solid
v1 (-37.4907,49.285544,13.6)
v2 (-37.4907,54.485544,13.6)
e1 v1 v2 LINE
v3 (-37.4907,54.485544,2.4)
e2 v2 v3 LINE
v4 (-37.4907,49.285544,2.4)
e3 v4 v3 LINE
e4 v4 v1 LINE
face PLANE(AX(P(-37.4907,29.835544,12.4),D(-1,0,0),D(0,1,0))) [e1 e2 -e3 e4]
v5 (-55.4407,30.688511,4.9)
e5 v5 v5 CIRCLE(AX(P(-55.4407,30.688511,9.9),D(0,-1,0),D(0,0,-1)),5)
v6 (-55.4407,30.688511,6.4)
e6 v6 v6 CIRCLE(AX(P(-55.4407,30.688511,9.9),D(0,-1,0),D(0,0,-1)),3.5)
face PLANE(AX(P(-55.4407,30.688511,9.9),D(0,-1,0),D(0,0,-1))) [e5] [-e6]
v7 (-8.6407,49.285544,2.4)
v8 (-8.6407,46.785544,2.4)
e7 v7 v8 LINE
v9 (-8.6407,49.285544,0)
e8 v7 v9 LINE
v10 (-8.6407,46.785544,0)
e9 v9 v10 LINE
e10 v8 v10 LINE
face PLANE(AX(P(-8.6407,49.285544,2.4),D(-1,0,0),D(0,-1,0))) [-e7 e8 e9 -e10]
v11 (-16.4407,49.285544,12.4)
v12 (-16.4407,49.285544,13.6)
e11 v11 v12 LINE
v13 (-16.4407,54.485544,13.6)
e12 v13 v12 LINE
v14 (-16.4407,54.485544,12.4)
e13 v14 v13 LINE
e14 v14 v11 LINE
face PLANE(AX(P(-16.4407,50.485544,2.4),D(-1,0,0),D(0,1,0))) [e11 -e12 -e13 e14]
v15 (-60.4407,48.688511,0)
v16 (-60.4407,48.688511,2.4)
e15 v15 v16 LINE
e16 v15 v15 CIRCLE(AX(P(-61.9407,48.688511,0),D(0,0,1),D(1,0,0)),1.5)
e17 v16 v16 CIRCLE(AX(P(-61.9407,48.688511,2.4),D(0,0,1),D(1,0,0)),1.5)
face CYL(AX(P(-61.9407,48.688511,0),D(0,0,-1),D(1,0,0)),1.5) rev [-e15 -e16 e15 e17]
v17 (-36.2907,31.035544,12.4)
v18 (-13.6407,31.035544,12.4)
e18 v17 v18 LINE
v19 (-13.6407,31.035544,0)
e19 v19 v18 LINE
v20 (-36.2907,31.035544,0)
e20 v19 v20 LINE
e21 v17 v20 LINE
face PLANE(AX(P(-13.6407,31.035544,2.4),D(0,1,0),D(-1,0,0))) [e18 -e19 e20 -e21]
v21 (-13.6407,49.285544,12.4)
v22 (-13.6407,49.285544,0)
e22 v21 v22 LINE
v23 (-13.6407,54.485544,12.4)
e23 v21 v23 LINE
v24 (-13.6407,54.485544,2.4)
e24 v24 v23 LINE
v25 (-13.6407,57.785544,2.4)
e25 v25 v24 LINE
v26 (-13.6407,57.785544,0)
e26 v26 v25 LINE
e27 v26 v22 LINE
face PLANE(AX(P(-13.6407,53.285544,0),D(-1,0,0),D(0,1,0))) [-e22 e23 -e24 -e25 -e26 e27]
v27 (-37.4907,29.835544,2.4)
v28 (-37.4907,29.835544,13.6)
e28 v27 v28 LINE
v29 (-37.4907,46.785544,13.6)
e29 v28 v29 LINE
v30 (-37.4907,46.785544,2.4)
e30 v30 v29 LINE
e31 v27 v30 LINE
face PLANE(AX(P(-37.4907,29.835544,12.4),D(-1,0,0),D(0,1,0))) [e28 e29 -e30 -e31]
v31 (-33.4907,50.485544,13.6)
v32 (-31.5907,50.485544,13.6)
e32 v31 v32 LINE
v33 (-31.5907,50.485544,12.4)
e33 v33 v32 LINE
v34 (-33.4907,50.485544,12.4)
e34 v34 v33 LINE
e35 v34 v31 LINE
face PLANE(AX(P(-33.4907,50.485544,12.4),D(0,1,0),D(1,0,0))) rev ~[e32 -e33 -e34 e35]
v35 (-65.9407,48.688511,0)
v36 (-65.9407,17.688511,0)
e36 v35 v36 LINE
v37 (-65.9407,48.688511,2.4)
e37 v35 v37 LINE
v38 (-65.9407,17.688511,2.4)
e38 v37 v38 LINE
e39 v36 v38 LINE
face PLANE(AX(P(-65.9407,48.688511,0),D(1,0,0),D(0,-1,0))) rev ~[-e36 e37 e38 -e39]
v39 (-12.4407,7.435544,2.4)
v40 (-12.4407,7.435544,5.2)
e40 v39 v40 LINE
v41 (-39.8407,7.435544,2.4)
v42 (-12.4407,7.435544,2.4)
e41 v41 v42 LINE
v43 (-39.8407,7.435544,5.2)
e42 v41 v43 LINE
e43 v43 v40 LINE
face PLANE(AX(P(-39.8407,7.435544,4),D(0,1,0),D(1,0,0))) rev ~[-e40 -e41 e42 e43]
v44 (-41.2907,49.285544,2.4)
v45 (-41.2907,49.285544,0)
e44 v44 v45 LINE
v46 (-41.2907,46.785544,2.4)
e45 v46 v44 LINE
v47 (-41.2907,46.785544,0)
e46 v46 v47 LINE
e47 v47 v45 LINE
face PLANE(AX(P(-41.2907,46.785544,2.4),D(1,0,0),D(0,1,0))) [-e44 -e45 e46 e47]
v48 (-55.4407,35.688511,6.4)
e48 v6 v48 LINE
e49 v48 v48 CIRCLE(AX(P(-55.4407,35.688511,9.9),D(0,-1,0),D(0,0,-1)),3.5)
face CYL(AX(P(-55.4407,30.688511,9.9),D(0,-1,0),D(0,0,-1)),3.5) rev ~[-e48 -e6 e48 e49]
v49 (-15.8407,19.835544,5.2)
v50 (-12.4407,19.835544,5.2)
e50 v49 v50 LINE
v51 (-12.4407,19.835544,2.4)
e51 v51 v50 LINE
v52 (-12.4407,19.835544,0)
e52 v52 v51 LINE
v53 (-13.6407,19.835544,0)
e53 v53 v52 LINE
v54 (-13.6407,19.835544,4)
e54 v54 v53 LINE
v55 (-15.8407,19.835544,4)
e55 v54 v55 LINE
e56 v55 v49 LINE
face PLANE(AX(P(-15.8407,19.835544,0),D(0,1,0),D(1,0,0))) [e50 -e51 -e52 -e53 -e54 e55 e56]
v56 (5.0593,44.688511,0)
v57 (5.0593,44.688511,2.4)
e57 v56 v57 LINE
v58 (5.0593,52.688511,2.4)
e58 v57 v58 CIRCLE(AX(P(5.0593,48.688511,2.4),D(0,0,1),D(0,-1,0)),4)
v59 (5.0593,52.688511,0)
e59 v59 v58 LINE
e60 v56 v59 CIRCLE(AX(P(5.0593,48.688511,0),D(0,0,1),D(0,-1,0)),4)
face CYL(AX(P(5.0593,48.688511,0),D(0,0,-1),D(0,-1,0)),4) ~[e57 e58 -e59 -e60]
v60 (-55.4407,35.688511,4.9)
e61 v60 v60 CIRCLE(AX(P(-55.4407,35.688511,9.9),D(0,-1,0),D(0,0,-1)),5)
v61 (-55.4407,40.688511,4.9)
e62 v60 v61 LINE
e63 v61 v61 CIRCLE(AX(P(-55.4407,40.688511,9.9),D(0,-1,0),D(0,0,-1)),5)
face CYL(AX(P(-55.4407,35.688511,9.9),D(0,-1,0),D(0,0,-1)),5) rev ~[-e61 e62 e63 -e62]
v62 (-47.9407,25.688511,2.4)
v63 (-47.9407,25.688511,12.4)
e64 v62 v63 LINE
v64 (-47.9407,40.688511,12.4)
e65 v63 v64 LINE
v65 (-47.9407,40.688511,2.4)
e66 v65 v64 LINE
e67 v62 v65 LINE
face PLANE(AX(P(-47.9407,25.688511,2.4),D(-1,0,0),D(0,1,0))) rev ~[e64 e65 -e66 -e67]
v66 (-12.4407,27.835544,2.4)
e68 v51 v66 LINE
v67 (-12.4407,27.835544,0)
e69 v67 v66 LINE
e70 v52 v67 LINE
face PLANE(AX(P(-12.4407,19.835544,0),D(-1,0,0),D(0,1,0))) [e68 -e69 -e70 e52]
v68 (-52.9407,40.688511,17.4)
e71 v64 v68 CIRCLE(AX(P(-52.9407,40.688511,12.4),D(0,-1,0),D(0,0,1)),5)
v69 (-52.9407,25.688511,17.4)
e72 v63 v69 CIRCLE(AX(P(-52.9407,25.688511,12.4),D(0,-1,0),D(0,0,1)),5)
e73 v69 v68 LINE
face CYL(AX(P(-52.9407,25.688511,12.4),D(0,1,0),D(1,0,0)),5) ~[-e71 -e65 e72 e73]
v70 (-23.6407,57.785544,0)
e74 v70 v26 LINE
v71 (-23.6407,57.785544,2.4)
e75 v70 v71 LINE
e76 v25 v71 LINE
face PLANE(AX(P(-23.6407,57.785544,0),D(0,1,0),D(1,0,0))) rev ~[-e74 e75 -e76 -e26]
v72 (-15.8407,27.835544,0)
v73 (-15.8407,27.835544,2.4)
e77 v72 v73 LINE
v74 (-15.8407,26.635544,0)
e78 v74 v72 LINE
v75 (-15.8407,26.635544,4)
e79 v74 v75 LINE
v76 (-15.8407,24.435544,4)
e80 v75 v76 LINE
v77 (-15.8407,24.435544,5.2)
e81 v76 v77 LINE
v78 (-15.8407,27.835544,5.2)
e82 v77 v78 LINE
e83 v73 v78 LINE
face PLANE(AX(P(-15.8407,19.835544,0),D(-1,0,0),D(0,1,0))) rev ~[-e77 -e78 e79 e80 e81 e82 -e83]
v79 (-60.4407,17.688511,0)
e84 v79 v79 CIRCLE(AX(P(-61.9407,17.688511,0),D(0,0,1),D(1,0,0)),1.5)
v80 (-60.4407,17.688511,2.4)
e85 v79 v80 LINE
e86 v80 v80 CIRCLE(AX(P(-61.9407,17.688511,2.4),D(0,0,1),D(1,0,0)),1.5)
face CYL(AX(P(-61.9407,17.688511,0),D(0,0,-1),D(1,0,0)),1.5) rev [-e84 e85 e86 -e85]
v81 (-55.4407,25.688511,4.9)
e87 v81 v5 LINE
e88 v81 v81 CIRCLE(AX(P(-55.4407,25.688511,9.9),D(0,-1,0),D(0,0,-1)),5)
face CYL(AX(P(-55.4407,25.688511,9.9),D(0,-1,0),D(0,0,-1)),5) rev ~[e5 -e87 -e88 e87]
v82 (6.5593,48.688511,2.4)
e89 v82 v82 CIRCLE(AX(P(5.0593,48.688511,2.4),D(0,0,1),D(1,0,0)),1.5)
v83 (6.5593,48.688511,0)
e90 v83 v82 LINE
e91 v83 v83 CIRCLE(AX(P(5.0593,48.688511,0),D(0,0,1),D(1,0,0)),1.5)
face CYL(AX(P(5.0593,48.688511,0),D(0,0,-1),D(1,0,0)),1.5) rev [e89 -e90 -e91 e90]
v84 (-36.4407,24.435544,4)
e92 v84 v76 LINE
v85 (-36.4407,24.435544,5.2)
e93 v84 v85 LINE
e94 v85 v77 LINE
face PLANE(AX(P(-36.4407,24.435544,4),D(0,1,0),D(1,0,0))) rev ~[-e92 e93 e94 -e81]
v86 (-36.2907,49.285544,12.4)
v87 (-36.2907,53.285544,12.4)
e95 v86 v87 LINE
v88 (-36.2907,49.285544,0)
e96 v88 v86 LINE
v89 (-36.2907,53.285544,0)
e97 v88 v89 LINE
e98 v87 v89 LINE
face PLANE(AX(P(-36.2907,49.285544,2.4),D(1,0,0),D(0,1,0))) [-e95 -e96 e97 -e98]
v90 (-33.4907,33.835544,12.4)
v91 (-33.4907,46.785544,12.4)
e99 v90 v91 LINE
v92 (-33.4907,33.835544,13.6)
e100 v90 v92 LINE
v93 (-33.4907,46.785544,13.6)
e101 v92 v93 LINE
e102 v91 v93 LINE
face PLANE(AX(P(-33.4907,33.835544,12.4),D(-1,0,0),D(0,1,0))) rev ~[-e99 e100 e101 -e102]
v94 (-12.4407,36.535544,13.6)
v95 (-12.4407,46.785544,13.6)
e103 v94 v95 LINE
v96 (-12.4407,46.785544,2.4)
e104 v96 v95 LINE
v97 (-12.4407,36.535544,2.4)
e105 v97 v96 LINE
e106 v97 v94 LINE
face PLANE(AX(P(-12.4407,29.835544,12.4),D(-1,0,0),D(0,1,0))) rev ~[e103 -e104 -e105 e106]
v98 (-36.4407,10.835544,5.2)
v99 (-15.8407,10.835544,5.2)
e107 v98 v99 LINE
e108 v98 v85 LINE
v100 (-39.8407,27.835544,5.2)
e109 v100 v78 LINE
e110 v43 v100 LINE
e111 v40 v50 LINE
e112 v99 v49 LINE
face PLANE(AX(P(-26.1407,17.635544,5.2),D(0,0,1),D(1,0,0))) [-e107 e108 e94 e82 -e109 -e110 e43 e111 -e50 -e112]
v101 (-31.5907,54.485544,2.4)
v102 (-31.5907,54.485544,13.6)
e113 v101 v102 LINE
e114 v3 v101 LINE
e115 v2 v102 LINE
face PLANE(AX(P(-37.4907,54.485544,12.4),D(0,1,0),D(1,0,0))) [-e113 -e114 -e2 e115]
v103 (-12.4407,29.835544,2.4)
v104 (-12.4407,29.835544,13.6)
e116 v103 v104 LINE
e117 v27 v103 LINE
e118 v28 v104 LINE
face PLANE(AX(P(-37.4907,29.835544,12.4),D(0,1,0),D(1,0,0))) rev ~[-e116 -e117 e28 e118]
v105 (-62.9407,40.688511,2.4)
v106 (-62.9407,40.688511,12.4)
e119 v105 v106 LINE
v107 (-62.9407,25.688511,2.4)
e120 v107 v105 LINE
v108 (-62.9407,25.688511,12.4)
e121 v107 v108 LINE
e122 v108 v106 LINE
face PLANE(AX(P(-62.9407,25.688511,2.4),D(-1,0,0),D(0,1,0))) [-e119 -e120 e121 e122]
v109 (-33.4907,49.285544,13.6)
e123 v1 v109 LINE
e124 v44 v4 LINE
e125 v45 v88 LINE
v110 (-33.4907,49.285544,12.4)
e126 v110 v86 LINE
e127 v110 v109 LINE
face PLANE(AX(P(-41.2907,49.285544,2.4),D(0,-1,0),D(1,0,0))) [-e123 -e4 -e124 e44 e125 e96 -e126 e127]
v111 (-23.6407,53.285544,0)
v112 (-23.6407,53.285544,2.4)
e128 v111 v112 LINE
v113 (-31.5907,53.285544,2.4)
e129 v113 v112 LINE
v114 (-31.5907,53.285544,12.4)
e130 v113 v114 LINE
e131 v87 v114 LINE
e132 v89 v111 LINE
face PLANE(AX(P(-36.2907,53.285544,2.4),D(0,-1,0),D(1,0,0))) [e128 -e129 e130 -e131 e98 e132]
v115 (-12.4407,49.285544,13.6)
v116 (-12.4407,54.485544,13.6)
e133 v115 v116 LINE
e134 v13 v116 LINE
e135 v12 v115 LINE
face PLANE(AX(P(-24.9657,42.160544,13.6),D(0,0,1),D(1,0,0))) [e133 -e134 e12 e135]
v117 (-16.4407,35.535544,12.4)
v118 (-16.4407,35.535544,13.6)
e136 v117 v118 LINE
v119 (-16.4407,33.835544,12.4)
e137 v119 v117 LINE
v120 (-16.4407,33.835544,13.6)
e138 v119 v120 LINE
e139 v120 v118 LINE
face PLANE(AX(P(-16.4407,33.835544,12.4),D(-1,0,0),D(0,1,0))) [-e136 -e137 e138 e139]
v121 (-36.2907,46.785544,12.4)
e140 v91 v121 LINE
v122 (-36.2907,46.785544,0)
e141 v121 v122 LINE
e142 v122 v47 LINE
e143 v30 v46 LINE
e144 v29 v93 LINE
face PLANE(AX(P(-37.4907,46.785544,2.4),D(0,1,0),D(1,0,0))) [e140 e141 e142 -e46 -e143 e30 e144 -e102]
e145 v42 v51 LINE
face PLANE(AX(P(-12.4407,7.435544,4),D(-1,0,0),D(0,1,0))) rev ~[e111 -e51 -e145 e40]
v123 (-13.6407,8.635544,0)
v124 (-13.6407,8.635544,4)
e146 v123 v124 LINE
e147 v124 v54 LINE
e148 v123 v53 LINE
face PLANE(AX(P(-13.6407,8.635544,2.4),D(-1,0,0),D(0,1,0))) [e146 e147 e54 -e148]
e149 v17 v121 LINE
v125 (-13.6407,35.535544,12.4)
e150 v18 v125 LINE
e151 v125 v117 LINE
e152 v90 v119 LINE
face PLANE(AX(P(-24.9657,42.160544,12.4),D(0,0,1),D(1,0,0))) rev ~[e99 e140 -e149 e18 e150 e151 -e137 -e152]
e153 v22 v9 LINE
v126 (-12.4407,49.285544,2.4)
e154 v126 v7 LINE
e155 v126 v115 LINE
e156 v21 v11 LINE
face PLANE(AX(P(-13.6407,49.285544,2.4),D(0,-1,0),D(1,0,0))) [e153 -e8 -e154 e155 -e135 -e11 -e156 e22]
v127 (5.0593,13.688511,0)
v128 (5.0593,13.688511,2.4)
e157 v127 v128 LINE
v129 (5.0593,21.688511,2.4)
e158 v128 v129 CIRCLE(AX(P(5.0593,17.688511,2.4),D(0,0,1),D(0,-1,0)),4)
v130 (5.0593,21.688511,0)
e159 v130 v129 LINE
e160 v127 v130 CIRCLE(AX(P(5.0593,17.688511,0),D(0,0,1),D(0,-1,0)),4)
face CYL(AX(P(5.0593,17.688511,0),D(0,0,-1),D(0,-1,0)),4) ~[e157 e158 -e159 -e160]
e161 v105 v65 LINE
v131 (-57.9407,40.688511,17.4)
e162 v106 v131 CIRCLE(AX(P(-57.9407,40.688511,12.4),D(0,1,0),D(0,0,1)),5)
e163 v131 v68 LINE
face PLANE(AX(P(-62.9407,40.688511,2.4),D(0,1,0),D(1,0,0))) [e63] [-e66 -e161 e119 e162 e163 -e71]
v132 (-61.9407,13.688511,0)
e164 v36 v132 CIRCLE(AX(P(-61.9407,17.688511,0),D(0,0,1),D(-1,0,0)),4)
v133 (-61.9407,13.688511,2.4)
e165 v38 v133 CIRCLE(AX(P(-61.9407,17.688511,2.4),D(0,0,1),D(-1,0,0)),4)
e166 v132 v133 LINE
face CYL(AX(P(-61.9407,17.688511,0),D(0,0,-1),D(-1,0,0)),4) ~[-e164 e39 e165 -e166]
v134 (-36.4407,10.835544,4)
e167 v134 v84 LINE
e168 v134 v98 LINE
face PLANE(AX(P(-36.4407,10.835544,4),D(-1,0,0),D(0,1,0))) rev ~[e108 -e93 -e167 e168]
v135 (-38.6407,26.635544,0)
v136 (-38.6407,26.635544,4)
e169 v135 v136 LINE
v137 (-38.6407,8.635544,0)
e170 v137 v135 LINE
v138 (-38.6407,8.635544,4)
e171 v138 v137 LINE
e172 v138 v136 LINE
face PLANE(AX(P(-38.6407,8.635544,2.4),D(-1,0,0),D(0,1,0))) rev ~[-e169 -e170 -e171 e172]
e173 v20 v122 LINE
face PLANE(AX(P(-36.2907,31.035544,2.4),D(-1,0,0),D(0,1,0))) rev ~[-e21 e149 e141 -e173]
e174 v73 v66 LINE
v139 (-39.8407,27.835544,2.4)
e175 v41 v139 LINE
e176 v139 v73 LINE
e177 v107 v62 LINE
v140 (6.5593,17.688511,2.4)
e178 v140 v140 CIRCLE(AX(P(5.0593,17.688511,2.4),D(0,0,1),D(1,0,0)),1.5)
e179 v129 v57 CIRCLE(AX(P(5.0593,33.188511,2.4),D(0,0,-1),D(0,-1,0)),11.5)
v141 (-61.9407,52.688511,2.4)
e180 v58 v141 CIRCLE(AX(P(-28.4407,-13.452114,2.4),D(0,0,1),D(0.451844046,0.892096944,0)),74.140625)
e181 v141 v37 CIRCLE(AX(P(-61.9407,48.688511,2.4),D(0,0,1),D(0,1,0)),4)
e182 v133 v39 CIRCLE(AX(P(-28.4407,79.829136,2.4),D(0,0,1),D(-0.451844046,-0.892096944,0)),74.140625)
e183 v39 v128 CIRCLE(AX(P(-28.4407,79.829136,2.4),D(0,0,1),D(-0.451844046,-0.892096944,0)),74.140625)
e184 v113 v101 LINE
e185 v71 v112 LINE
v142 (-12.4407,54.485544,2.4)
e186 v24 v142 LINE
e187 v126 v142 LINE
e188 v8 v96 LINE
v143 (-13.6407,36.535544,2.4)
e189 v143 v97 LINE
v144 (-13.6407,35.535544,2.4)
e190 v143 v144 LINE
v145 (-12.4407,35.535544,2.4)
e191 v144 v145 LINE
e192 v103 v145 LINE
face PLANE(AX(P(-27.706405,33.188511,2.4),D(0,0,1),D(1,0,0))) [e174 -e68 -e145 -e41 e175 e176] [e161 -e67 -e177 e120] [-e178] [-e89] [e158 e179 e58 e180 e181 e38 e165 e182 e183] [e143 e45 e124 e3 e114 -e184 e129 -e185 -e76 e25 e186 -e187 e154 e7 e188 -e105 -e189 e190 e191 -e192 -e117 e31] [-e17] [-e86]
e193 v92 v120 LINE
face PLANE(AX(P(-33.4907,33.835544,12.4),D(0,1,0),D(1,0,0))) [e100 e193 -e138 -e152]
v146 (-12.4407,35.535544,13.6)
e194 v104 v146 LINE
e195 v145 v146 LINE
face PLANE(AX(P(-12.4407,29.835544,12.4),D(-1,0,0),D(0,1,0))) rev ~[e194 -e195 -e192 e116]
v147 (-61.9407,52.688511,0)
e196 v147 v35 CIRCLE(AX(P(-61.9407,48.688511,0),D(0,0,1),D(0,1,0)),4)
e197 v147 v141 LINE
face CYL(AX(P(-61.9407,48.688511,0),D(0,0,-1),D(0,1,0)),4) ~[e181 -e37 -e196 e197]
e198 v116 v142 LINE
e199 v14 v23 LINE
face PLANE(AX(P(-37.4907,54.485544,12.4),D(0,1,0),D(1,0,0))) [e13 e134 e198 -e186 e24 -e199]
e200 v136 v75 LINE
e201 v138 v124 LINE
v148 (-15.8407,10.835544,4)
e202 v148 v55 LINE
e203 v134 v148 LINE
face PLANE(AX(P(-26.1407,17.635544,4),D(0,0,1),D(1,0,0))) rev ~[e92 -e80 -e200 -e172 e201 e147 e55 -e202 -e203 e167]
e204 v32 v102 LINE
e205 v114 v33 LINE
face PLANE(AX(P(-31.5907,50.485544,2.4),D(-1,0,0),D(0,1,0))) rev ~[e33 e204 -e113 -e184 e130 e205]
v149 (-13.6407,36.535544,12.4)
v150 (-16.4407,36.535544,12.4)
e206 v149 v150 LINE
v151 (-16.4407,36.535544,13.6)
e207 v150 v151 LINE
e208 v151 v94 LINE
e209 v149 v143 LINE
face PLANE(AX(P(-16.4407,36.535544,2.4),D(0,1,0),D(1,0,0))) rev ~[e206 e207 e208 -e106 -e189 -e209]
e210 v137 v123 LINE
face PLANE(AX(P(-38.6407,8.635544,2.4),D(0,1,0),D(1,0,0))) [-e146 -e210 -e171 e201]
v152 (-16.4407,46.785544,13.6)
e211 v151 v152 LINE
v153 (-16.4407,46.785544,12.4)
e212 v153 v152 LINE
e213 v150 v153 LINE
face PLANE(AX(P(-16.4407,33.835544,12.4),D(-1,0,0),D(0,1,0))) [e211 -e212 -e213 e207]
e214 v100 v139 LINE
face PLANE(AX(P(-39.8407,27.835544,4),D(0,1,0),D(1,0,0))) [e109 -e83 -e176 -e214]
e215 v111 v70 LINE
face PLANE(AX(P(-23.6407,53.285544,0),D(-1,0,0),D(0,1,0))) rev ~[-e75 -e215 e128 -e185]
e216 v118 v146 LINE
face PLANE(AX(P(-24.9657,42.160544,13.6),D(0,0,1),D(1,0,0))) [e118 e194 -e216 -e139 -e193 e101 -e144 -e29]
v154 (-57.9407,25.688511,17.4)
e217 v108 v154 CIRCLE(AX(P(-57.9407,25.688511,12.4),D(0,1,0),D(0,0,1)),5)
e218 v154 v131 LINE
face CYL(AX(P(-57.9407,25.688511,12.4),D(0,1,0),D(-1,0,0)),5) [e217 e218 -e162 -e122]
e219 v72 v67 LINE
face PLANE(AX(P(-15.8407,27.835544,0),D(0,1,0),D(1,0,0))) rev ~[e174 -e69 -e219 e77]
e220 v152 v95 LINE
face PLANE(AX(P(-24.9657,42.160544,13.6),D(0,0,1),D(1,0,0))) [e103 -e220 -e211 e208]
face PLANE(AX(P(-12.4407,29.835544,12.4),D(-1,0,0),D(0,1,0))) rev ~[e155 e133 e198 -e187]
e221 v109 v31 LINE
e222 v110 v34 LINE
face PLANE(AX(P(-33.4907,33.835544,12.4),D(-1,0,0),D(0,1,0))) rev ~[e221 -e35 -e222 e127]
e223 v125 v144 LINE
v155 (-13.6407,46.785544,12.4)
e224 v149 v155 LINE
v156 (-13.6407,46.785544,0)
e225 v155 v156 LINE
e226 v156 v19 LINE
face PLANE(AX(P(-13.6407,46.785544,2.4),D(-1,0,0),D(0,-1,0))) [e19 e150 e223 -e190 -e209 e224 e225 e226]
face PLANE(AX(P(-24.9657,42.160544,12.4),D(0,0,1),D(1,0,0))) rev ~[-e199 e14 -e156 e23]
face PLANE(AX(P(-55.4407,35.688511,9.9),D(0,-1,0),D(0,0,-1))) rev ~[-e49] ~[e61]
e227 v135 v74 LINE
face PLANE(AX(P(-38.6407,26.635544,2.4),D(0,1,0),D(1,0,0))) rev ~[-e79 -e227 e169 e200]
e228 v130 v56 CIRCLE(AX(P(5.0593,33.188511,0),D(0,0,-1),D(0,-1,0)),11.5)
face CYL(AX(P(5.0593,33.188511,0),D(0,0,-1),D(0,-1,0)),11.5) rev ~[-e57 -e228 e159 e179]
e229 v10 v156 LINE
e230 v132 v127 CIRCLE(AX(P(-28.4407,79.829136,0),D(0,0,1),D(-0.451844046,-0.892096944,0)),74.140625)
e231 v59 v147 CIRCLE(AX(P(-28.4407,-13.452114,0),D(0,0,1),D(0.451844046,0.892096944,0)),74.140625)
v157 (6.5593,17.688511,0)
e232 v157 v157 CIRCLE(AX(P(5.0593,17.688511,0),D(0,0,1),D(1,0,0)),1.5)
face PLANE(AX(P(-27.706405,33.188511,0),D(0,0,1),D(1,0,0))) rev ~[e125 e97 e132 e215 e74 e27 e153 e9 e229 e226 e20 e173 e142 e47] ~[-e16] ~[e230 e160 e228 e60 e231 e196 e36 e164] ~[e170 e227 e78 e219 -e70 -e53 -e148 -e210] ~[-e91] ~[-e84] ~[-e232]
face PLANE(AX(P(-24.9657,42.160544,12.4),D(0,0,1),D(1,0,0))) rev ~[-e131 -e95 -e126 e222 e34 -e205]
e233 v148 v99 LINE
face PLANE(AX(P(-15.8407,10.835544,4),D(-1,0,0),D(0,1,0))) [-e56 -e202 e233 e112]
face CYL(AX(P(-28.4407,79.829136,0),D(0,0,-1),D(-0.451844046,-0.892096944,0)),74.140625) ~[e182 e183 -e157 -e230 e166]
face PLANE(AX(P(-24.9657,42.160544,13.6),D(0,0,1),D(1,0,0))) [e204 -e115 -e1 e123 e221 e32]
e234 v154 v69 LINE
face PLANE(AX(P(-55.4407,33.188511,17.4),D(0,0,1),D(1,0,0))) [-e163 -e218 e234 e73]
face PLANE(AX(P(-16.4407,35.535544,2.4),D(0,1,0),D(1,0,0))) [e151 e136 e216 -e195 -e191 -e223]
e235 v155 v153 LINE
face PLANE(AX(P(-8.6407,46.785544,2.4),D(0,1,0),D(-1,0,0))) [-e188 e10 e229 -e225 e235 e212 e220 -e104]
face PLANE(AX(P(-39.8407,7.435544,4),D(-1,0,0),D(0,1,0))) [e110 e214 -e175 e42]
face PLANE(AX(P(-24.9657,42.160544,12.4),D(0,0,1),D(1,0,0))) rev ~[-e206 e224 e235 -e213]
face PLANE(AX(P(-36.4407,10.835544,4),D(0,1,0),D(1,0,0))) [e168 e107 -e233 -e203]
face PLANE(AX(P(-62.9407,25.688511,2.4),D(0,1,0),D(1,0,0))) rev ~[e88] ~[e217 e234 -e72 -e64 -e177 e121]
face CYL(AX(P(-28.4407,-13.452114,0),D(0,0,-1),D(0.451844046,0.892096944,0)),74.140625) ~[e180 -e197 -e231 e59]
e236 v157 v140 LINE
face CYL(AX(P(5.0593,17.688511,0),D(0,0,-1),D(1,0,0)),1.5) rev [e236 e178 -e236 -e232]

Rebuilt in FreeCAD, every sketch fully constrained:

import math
import FreeCAD as App
import Part
import Sketcher

V = App.Vector
Q = App.Units.Quantity


def edges_at(feature, points):
    """Names of the edges that pass closest to the given points."""
    edges = feature.Shape.Edges
    near = lambda p: min(range(len(edges)), key=lambda i: edges[i].distToShape(Part.Vertex(*p))[0])
    return sorted({f"Edge{near(p) + 1}" for p in points})

doc = App.newDocument("Part")
params = doc.addObject("Spreadsheet::Sheet", "Params")
for row, (alias, value) in enumerate([
    ("sketch1_diameter", "3 mm"),
    ("sketch1_radius", "4 mm"),
    ("sketch1_radius2", "11.5 mm"),
    ("pad1_length", "2.4 mm"),
    ("sketch2_width", "25.05 mm"),
    ("sketch2_width2", "22.65 mm"),
    ("sketch2_height", "24.65 mm"),
    ("sketch2_height2", "22.25 mm"),
    ("pad2_length", "10 mm"),
    ("sketch3_width", "25.05 mm"),
    ("sketch3_height", "24.65 mm"),
    ("pad3_length", "1.2 mm"),
    ("sketch4_width", "4 mm"),
    ("sketch4_height", "1 mm"),
    ("sketch4_height2", "2.5 mm"),
    ("sketch4_width2", "15.15 mm"),
    ("pocket1_length", "11.2 mm"),
    ("sketch5_width", "25 mm"),
    ("sketch5_height", "18 mm"),
    ("sketch5_width2", "27.4 mm"),
    ("sketch5_height2", "20.4 mm"),
    ("pad4_length", "1.6 mm"),
    ("sketch6_width", "15 mm"),
    ("pad5_length", "15 mm"),
    ("sketch7_diameter", "10 mm"),
    ("pocket2_length", "5 mm"),
    ("sketch8_diameter", "10 mm"),
    ("pocket3_length", "5 mm"),
    ("sketch9_diameter", "7 mm"),
    ("pocket4_length", "5 mm"),
    ("sketch10_width", "5 mm"),
    ("sketch10_height", "4 mm"),
    ("sketch10_height2", "2.5 mm"),
    ("sketch10_width2", "22.65 mm"),
    ("sketch10_height3", "15.75 mm"),
    ("pocket5_length", "2.4 mm"),
    ("sketch11_width", "10 mm"),
    ("sketch11_height", "4.5 mm"),
    ("pocket6_length", "10 mm"),
    ("pocket6_length2", "2.4 mm"),
    ("sketch12_width", "27.4 mm"),
    ("sketch12_width2", "20.6 mm"),
    ("sketch12_height", "20.4 mm"),
    ("sketch12_height2", "13.6 mm"),
    ("pad6_length", "1.2 mm"),
    ("sketch13_width", "25 mm"),
    ("sketch13_height", "18 mm"),
    ("pocket7_length", "2.4 mm"),
    ("sketch14_height", "8 mm"),
    ("sketch14_width", "3.4 mm"),
    ("pocket8_length", "5.2 mm"),
    ("fillet_radius", "5 mm"),
], start=1):
    params.set(f"A{row}", alias)
    params.set(f"B{row}", "=" + value)
    params.setAlias(f"B{row}", alias)

body = doc.addObject("PartDesign::Body", "Body")

sketch1 = doc.addObject("Sketcher::SketchObject", "Sketch")
body.addObject(sketch1)
sketch1.AttachmentSupport = (doc.XY_Plane, [""])
sketch1.MapMode = "FlatFace"
sketch1.addGeometry([
    Part.LineSegment(V(-65.9, 48.7, 0), V(-65.9, 17.7, 0)),
    Part.ArcOfCircle(Part.Circle(V(-61.9, 17.7, 0), V(0, 0, 1), 4), math.radians(-180), math.radians(-90)),
    Part.ArcOfCircle(Part.Circle(V(-28.4, 79.8, 0), V(0, 0, 1), 74.1), math.radians(-117), math.radians(-63)),
    Part.ArcOfCircle(Part.Circle(V(5.1, 17.7, 0), V(0, 0, 1), 4), math.radians(-90), math.radians(90)),
    Part.ArcOfCircle(Part.Circle(V(5.1, 33.2, 0), V(0, 0, 1), 11.5), math.radians(90), math.radians(270)),
    Part.ArcOfCircle(Part.Circle(V(5.1, 48.7, 0), V(0, 0, 1), 4), math.radians(-90), math.radians(90)),
    Part.ArcOfCircle(Part.Circle(V(-28.4, -13.5, 0), V(0, 0, 1), 74.1), math.radians(63), math.radians(117)),
    Part.ArcOfCircle(Part.Circle(V(-61.9, 48.7, 0), V(0, 0, 1), 4), math.radians(90), math.radians(180)),
    Part.Circle(V(-61.9, 17.7, 0), V(0, 0, 1), 1.5),
    Part.Circle(V(5.1, 17.7, 0), V(0, 0, 1), 1.5),
    Part.Circle(V(-61.9, 48.7, 0), V(0, 0, 1), 1.5),
    Part.Circle(V(5.1, 48.7, 0), V(0, 0, 1), 1.5),
], False)
sketch1.addConstraint([
    Sketcher.Constraint("Tangent", 0, 2, 1, 1),
    Sketcher.Constraint("Coincident", 1, 2, 2, 1),
    Sketcher.Constraint("Coincident", 2, 2, 3, 1),
    Sketcher.Constraint("Tangent", 3, 2, 4, 2),
    Sketcher.Constraint("Tangent", 4, 1, 5, 1),
    Sketcher.Constraint("Coincident", 5, 2, 6, 1),
    Sketcher.Constraint("Coincident", 6, 2, 7, 1),
    Sketcher.Constraint("Tangent", 7, 2, 0, 1),
    Sketcher.Constraint("Vertical", 0),
    Sketcher.Constraint("Coincident", 8, 3, 1, 3),
    Sketcher.Constraint("Coincident", 9, 3, 3, 3),
    Sketcher.Constraint("Coincident", 10, 3, 7, 3),
    Sketcher.Constraint("Coincident", 11, 3, 5, 3),
    Sketcher.Constraint("Equal", 1, 3),
    Sketcher.Constraint("Equal", 3, 5),
    Sketcher.Constraint("Equal", 2, 6),
    Sketcher.Constraint("Equal", 5, 7),
    Sketcher.Constraint("Equal", 8, 9),
    Sketcher.Constraint("Equal", 9, 10),
    Sketcher.Constraint("Equal", 10, 11),
    Sketcher.Constraint("Horizontal", 1, 3, 3, 3),
    Sketcher.Constraint("Horizontal", 5, 3, 7, 3),
    Sketcher.Constraint("Vertical", 3, 3, 4, 3),
    Sketcher.Constraint("Vertical", 4, 3, 5, 3),
    Sketcher.Constraint("Vertical", 2, 3, 6, 3),
    Sketcher.Constraint("Vertical", 10, 3, 1, 2),
    Sketcher.Constraint("Vertical", 11, 3, 2, 2),
    Sketcher.Constraint("Vertical", 4, 1, 5, 2),
    Sketcher.Constraint("Diameter", 8, Q("3 mm")),
    Sketcher.Constraint("Radius", 1, Q("4 mm")),
    Sketcher.Constraint("Radius", 4, Q("11.5 mm")),
    Sketcher.Constraint("DistanceX", 1, 3, 3, 3, Q("67 mm")),
    Sketcher.Constraint("Radius", 2, Q("74.140625 mm")),
    Sketcher.Constraint("DistanceX", 1, 3, -1, 1, Q("61.9407 mm")),
    Sketcher.Constraint("DistanceY", -1, 1, 1, 3, Q("17.688511 mm")),
])
sketch1.setExpression("Constraints[28]", "Params.sketch1_diameter")
sketch1.setExpression("Constraints[29]", "Params.sketch1_radius")
sketch1.setExpression("Constraints[30]", "Params.sketch1_radius2")
pad1 = doc.addObject("PartDesign::Pad", "Pad")
body.addObject(pad1)
pad1.Profile = sketch1
pad1.setExpression("Length", "Params.pad1_length")

sketch2 = doc.addObject("Sketcher::SketchObject", "Sketch001")
body.addObject(sketch2)
sketch2.AttachmentSupport = (doc.XY_Plane, [""])
sketch2.MapMode = "FlatFace"
sketch2.AttachmentOffset = App.Placement(V(0, 0, 2.4), App.Rotation())
sketch2.addGeometry([
    Part.LineSegment(V(-37, 54, 0), V(-37, 30, 0)),
    Part.LineSegment(V(-37, 30, 0), V(-12, 30, 0)),
    Part.LineSegment(V(-12, 30, 0), V(-12, 54, 0)),
    Part.LineSegment(V(-12, 54, 0), V(-37, 54, 0)),
    Part.LineSegment(V(-14, 31, 0), V(-36, 31, 0)),
    Part.LineSegment(V(-36, 31, 0), V(-36, 53, 0)),
    Part.LineSegment(V(-36, 53, 0), V(-14, 53, 0)),
    Part.LineSegment(V(-14, 53, 0), V(-14, 31, 0)),
], False)
sketch2.addConstraint([
    Sketcher.Constraint("Coincident", 0, 2, 1, 1),
    Sketcher.Constraint("Coincident", 1, 2, 2, 1),
    Sketcher.Constraint("Coincident", 2, 2, 3, 1),
    Sketcher.Constraint("Coincident", 3, 2, 0, 1),
    Sketcher.Constraint("Coincident", 4, 2, 5, 1),
    Sketcher.Constraint("Coincident", 5, 2, 6, 1),
    Sketcher.Constraint("Coincident", 6, 2, 7, 1),
    Sketcher.Constraint("Coincident", 7, 2, 4, 1),
    Sketcher.Constraint("Vertical", 0),
    Sketcher.Constraint("Horizontal", 1),
    Sketcher.Constraint("Vertical", 2),
    Sketcher.Constraint("Horizontal", 3),
    Sketcher.Constraint("Horizontal", 4),
    Sketcher.Constraint("Vertical", 5),
    Sketcher.Constraint("Horizontal", 6),
    Sketcher.Constraint("Vertical", 7),
    Sketcher.Constraint("DistanceX", 1, 1, 1, 2, Q("25.05 mm")),
    Sketcher.Constraint("DistanceX", 4, 2, 4, 1, Q("22.65 mm")),
    Sketcher.Constraint("DistanceY", 0, 2, 0, 1, Q("24.65 mm")),
    Sketcher.Constraint("DistanceY", 5, 1, 5, 2, Q("22.25 mm")),
    Sketcher.Constraint("DistanceX", 0, 2, 4, 2, Q("1.2 mm")),
    Sketcher.Constraint("DistanceY", 0, 2, 4, 2, Q("1.2 mm")),
    Sketcher.Constraint("DistanceX", 0, 2, -1, 1, Q("37.4907 mm")),
    Sketcher.Constraint("DistanceY", -1, 1, 0, 2, Q("29.835544 mm")),
])
sketch2.setExpression("Constraints[16]", "Params.sketch2_width")
sketch2.setExpression("Constraints[17]", "Params.sketch2_width2")
sketch2.setExpression("Constraints[18]", "Params.sketch2_height")
sketch2.setExpression("Constraints[19]", "Params.sketch2_height2")
pad2 = doc.addObject("PartDesign::Pad", "Pad001")
body.addObject(pad2)
pad2.Profile = sketch2
pad2.setExpression("Length", "Params.pad2_length")

sketch3 = doc.addObject("Sketcher::SketchObject", "Sketch002")
body.addObject(sketch3)
sketch3.AttachmentSupport = (doc.XY_Plane, [""])
sketch3.MapMode = "FlatFace"
sketch3.AttachmentOffset = App.Placement(V(0, 0, 12.4), App.Rotation())
sketch3.addGeometry([
    Part.LineSegment(V(-37, 54, 0), V(-37, 30, 0)),
    Part.LineSegment(V(-37, 30, 0), V(-12, 30, 0)),
    Part.LineSegment(V(-12, 30, 0), V(-12, 54, 0)),
    Part.LineSegment(V(-12, 54, 0), V(-37, 54, 0)),
    Part.LineSegment(V(-16, 34, 0), V(-33, 34, 0)),
    Part.LineSegment(V(-33, 34, 0), V(-33, 50, 0)),
    Part.LineSegment(V(-33, 50, 0), V(-16, 50, 0)),
    Part.LineSegment(V(-16, 50, 0), V(-16, 34, 0)),
], False)
sketch3.addConstraint([
    Sketcher.Constraint("Coincident", 0, 2, 1, 1),
    Sketcher.Constraint("Coincident", 1, 2, 2, 1),
    Sketcher.Constraint("Coincident", 2, 2, 3, 1),
    Sketcher.Constraint("Coincident", 3, 2, 0, 1),
    Sketcher.Constraint("Coincident", 4, 2, 5, 1),
    Sketcher.Constraint("Coincident", 5, 2, 6, 1),
    Sketcher.Constraint("Coincident", 6, 2, 7, 1),
    Sketcher.Constraint("Coincident", 7, 2, 4, 1),
    Sketcher.Constraint("Vertical", 0),
    Sketcher.Constraint("Horizontal", 1),
    Sketcher.Constraint("Vertical", 2),
    Sketcher.Constraint("Horizontal", 3),
    Sketcher.Constraint("Horizontal", 4),
    Sketcher.Constraint("Vertical", 5),
    Sketcher.Constraint("Horizontal", 6),
    Sketcher.Constraint("Vertical", 7),
    Sketcher.Constraint("DistanceX", 0, 2, 4, 2, Q("4 mm")),
    Sketcher.Constraint("DistanceY", 0, 2, 4, 2, Q("4 mm")),
    Sketcher.Constraint("DistanceY", 5, 2, 3, 2, Q("4 mm")),
    Sketcher.Constraint("DistanceX", 6, 2, 2, 2, Q("4 mm")),
    Sketcher.Constraint("DistanceX", 1, 1, 1, 2, Q("25.05 mm")),
    Sketcher.Constraint("DistanceY", 0, 2, 0, 1, Q("24.65 mm")),
    Sketcher.Constraint("DistanceX", 0, 2, -1, 1, Q("37.4907 mm")),
    Sketcher.Constraint("DistanceY", -1, 1, 0, 2, Q("29.835544 mm")),
])
sketch3.setExpression("Constraints[20]", "Params.sketch3_width")
sketch3.setExpression("Constraints[21]", "Params.sketch3_height")
pad3 = doc.addObject("PartDesign::Pad", "Pad002")
body.addObject(pad3)
pad3.Profile = sketch3
pad3.setExpression("Length", "Params.pad3_length")

sketch4 = doc.addObject("Sketcher::SketchObject", "Sketch003")
body.addObject(sketch4)
sketch4.AttachmentSupport = (doc.XY_Plane, [""])
sketch4.MapMode = "FlatFace"
sketch4.AttachmentOffset = App.Placement(V(0, 0, 2.4), App.Rotation())
sketch4.addGeometry([
    Part.LineSegment(V(-37.5, 49.3, 0), V(-37.5, 46.8, 0)),
    Part.LineSegment(V(-37.5, 46.8, 0), V(-33.5, 46.8, 0)),
    Part.LineSegment(V(-33.5, 46.8, 0), V(-33.5, 49.3, 0)),
    Part.LineSegment(V(-33.5, 49.3, 0), V(-37.5, 49.3, 0)),
    Part.LineSegment(V(-31.6, 54.5, 0), V(-31.6, 50.5, 0)),
    Part.LineSegment(V(-31.6, 50.5, 0), V(-16.4, 50.5, 0)),
    Part.LineSegment(V(-16.4, 50.5, 0), V(-16.4, 54.5, 0)),
    Part.LineSegment(V(-16.4, 54.5, 0), V(-31.6, 54.5, 0)),
    Part.LineSegment(V(-16.4, 36.5, 0), V(-16.4, 35.5, 0)),
    Part.LineSegment(V(-16.4, 35.5, 0), V(-12.4, 35.5, 0)),
    Part.LineSegment(V(-12.4, 35.5, 0), V(-12.4, 36.5, 0)),
    Part.LineSegment(V(-12.4, 36.5, 0), V(-16.4, 36.5, 0)),
    Part.LineSegment(V(-16.4, 49.3, 0), V(-16.4, 46.8, 0)),
    Part.LineSegment(V(-16.4, 46.8, 0), V(-12.4, 46.8, 0)),
    Part.LineSegment(V(-12.4, 46.8, 0), V(-12.4, 49.3, 0)),
    Part.LineSegment(V(-12.4, 49.3, 0), V(-16.4, 49.3, 0)),
], False)
sketch4.addConstraint([
    Sketcher.Constraint("Coincident", 0, 2, 1, 1),
    Sketcher.Constraint("Coincident", 1, 2, 2, 1),
    Sketcher.Constraint("Coincident", 2, 2, 3, 1),
    Sketcher.Constraint("Coincident", 3, 2, 0, 1),
    Sketcher.Constraint("Coincident", 4, 2, 5, 1),
    Sketcher.Constraint("Coincident", 5, 2, 6, 1),
    Sketcher.Constraint("Coincident", 6, 2, 7, 1),
    Sketcher.Constraint("Coincident", 7, 2, 4, 1),
    Sketcher.Constraint("Coincident", 8, 2, 9, 1),
    Sketcher.Constraint("Coincident", 9, 2, 10, 1),
    Sketcher.Constraint("Coincident", 10, 2, 11, 1),
    Sketcher.Constraint("Coincident", 11, 2, 8, 1),
    Sketcher.Constraint("Coincident", 12, 2, 13, 1),
    Sketcher.Constraint("Coincident", 13, 2, 14, 1),
    Sketcher.Constraint("Coincident", 14, 2, 15, 1),
    Sketcher.Constraint("Coincident", 15, 2, 12, 1),
    Sketcher.Constraint("Vertical", 0),
    Sketcher.Constraint("Horizontal", 1),
    Sketcher.Constraint("Vertical", 2),
    Sketcher.Constraint("Horizontal", 3),
    Sketcher.Constraint("Vertical", 4),
    Sketcher.Constraint("Horizontal", 5),
    Sketcher.Constraint("Vertical", 6),
    Sketcher.Constraint("Horizontal", 7),
    Sketcher.Constraint("Vertical", 8),
    Sketcher.Constraint("Horizontal", 9),
    Sketcher.Constraint("Vertical", 10),
    Sketcher.Constraint("Horizontal", 11),
    Sketcher.Constraint("Vertical", 12),
    Sketcher.Constraint("Horizontal", 13),
    Sketcher.Constraint("Vertical", 14),
    Sketcher.Constraint("Horizontal", 15),
    Sketcher.Constraint("Horizontal", 1, 2, 12, 2),
    Sketcher.Constraint("Horizontal", 3, 2, 14, 2),
    Sketcher.Constraint("Vertical", 6, 2, 8, 2),
    Sketcher.Constraint("Vertical", 11, 2, 12, 2),
    Sketcher.Constraint("Vertical", 10, 2, 13, 2),
    Sketcher.Constraint("Equal", 3, 9),
    Sketcher.Constraint("Equal", 15, 4),
    Sketcher.Constraint("DistanceX", 1, 1, 1, 2, Q("4 mm")),
    Sketcher.Constraint("DistanceY", 8, 2, 8, 1, Q("1 mm")),
    Sketcher.Constraint("DistanceY", 0, 2, 0, 1, Q("2.5 mm")),
    Sketcher.Constraint("DistanceX", 5, 1, 5, 2, Q("15.15 mm")),
    Sketcher.Constraint("DistanceX", 2, 2, 4, 2, Q("1.9 mm")),
    Sketcher.Constraint("DistanceY", 2, 2, 4, 2, Q("1.2 mm")),
    Sketcher.Constraint("DistanceY", 8, 2, 5, 2, Q("14.95 mm")),
    Sketcher.Constraint("DistanceX", 0, 2, -1, 1, Q("37.4907 mm")),
    Sketcher.Constraint("DistanceY", -1, 1, 0, 2, Q("46.785544 mm")),
])
sketch4.setExpression("Constraints[39]", "Params.sketch4_width")
sketch4.setExpression("Constraints[40]", "Params.sketch4_height")
sketch4.setExpression("Constraints[41]", "Params.sketch4_height2")
sketch4.setExpression("Constraints[42]", "Params.sketch4_width2")
pocket1 = doc.addObject("PartDesign::Pocket", "Pocket")
body.addObject(pocket1)
pocket1.Profile = sketch4
pocket1.setExpression("Length", "Params.pocket1_length")
pocket1.Reversed = True

sketch5 = doc.addObject("Sketcher::SketchObject", "Sketch004")
body.addObject(sketch5)
sketch5.AttachmentSupport = (doc.XY_Plane, [""])
sketch5.MapMode = "FlatFace"
sketch5.AttachmentOffset = App.Placement(V(0, 0, 2.4), App.Rotation())
sketch5.addGeometry([
    Part.LineSegment(V(-40, 28, 0), V(-40, 7, 0)),
    Part.LineSegment(V(-40, 7, 0), V(-12, 7, 0)),
    Part.LineSegment(V(-12, 7, 0), V(-12, 28, 0)),
    Part.LineSegment(V(-12, 28, 0), V(-40, 28, 0)),
    Part.LineSegment(V(-14, 9, 0), V(-39, 9, 0)),
    Part.LineSegment(V(-39, 9, 0), V(-39, 27, 0)),
    Part.LineSegment(V(-39, 27, 0), V(-14, 27, 0)),
    Part.LineSegment(V(-14, 27, 0), V(-14, 9, 0)),
], False)
sketch5.addConstraint([
    Sketcher.Constraint("Coincident", 0, 2, 1, 1),
    Sketcher.Constraint("Coincident", 1, 2, 2, 1),
    Sketcher.Constraint("Coincident", 2, 2, 3, 1),
    Sketcher.Constraint("Coincident", 3, 2, 0, 1),
    Sketcher.Constraint("Coincident", 4, 2, 5, 1),
    Sketcher.Constraint("Coincident", 5, 2, 6, 1),
    Sketcher.Constraint("Coincident", 6, 2, 7, 1),
    Sketcher.Constraint("Coincident", 7, 2, 4, 1),
    Sketcher.Constraint("Vertical", 0),
    Sketcher.Constraint("Horizontal", 1),
    Sketcher.Constraint("Vertical", 2),
    Sketcher.Constraint("Horizontal", 3),
    Sketcher.Constraint("Horizontal", 4),
    Sketcher.Constraint("Vertical", 5),
    Sketcher.Constraint("Horizontal", 6),
    Sketcher.Constraint("Vertical", 7),
    Sketcher.Constraint("DistanceX", 4, 2, 4, 1, Q("25 mm")),
    Sketcher.Constraint("DistanceY", 5, 1, 5, 2, Q("18 mm")),
    Sketcher.Constraint("DistanceX", 1, 1, 1, 2, Q("27.4 mm")),
    Sketcher.Constraint("DistanceY", 0, 2, 0, 1, Q("20.4 mm")),
    Sketcher.Constraint("DistanceX", 0, 2, 4, 2, Q("1.2 mm")),
    Sketcher.Constraint("DistanceY", 0, 2, 4, 2, Q("1.2 mm")),
    Sketcher.Constraint("DistanceX", 0, 2, -1, 1, Q("39.8407 mm")),
    Sketcher.Constraint("DistanceY", -1, 1, 0, 2, Q("7.435544 mm")),
])
sketch5.setExpression("Constraints[16]", "Params.sketch5_width")
sketch5.setExpression("Constraints[17]", "Params.sketch5_height")
sketch5.setExpression("Constraints[18]", "Params.sketch5_width2")
sketch5.setExpression("Constraints[19]", "Params.sketch5_height2")
pad4 = doc.addObject("PartDesign::Pad", "Pad003")
body.addObject(pad4)
pad4.Profile = sketch5
pad4.setExpression("Length", "Params.pad4_length")

sketch6 = doc.addObject("Sketcher::SketchObject", "Sketch005")
body.addObject(sketch6)
sketch6.AttachmentSupport = (doc.XY_Plane, [""])
sketch6.MapMode = "FlatFace"
sketch6.AttachmentOffset = App.Placement(V(0, 0, 2.4), App.Rotation())
sketch6.addGeometry([
    Part.LineSegment(V(-63, 41, 0), V(-63, 26, 0)),
    Part.LineSegment(V(-63, 26, 0), V(-48, 26, 0)),
    Part.LineSegment(V(-48, 26, 0), V(-48, 41, 0)),
    Part.LineSegment(V(-48, 41, 0), V(-63, 41, 0)),
], False)
sketch6.addConstraint([
    Sketcher.Constraint("Coincident", 0, 2, 1, 1),
    Sketcher.Constraint("Coincident", 1, 2, 2, 1),
    Sketcher.Constraint("Coincident", 2, 2, 3, 1),
    Sketcher.Constraint("Coincident", 3, 2, 0, 1),
    Sketcher.Constraint("Vertical", 0),
    Sketcher.Constraint("Horizontal", 1),
    Sketcher.Constraint("Vertical", 2),
    Sketcher.Constraint("Horizontal", 3),
    Sketcher.Constraint("Equal", 3, 0),
    Sketcher.Constraint("DistanceX", 1, 1, 1, 2, Q("15 mm")),
    Sketcher.Constraint("DistanceX", 0, 2, -1, 1, Q("62.9407 mm")),
    Sketcher.Constraint("DistanceY", -1, 1, 0, 2, Q("25.688511 mm")),
])
sketch6.setExpression("Constraints[9]", "Params.sketch6_width")
pad5 = doc.addObject("PartDesign::Pad", "Pad004")
body.addObject(pad5)
pad5.Profile = sketch6
pad5.setExpression("Length", "Params.pad5_length")

sketch7 = doc.addObject("Sketcher::SketchObject", "Sketch006")
body.addObject(sketch7)
sketch7.AttachmentSupport = (doc.XZ_Plane, [""])
sketch7.MapMode = "FlatFace"
sketch7.AttachmentOffset = App.Placement(V(0, 0, -25.688511), App.Rotation())
sketch7.addGeometry(Part.Circle(V(-55, 10, 0), V(0, 0, 1), 5), False)
sketch7.addConstraint([
    Sketcher.Constraint("Diameter", 0, Q("10 mm")),
    Sketcher.Constraint("DistanceY", -1, 1, 0, 3, Q("9.9 mm")),
    Sketcher.Constraint("DistanceX", 0, 3, -1, 1, Q("55.4407 mm")),
])
sketch7.setExpression("Constraints[0]", "Params.sketch7_diameter")
pocket2 = doc.addObject("PartDesign::Pocket", "Pocket001")
body.addObject(pocket2)
pocket2.Profile = sketch7
pocket2.setExpression("Length", "Params.pocket2_length")

sketch8 = doc.addObject("Sketcher::SketchObject", "Sketch007")
body.addObject(sketch8)
sketch8.AttachmentSupport = (doc.XZ_Plane, [""])
sketch8.MapMode = "FlatFace"
sketch8.AttachmentOffset = App.Placement(V(0, 0, -35.688511), App.Rotation())
sketch8.addGeometry(Part.Circle(V(-55, 10, 0), V(0, 0, 1), 5), False)
sketch8.addConstraint([
    Sketcher.Constraint("Diameter", 0, Q("10 mm")),
    Sketcher.Constraint("DistanceY", -1, 1, 0, 3, Q("9.9 mm")),
    Sketcher.Constraint("DistanceX", 0, 3, -1, 1, Q("55.4407 mm")),
])
sketch8.setExpression("Constraints[0]", "Params.sketch8_diameter")
pocket3 = doc.addObject("PartDesign::Pocket", "Pocket002")
body.addObject(pocket3)
pocket3.Profile = sketch8
pocket3.setExpression("Length", "Params.pocket3_length")

sketch9 = doc.addObject("Sketcher::SketchObject", "Sketch008")
body.addObject(sketch9)
sketch9.AttachmentSupport = (doc.XZ_Plane, [""])
sketch9.MapMode = "FlatFace"
sketch9.AttachmentOffset = App.Placement(V(0, 0, -30.688511), App.Rotation())
sketch9.addGeometry(Part.Circle(V(-55.4, 9.9, 0), V(0, 0, 1), 3.5), False)
sketch9.addConstraint([
    Sketcher.Constraint("Diameter", 0, Q("7 mm")),
    Sketcher.Constraint("DistanceY", -1, 1, 0, 3, Q("9.9 mm")),
    Sketcher.Constraint("DistanceX", 0, 3, -1, 1, Q("55.4407 mm")),
])
sketch9.setExpression("Constraints[0]", "Params.sketch9_diameter")
pocket4 = doc.addObject("PartDesign::Pocket", "Pocket003")
body.addObject(pocket4)
pocket4.Profile = sketch9
pocket4.setExpression("Length", "Params.pocket4_length")

sketch10 = doc.addObject("Sketcher::SketchObject", "Sketch009")
body.addObject(sketch10)
sketch10.AttachmentSupport = (doc.XY_Plane, [""])
sketch10.MapMode = "FlatFace"
sketch10.AttachmentOffset = App.Placement(V(0, 0, 2.4), App.Rotation())
sketch10.addGeometry([
    Part.LineSegment(V(-13.6, 53.3, 0), V(-36.3, 53.3, 0)),
    Part.LineSegment(V(-36.3, 53.3, 0), V(-36.3, 49.3, 0)),
    Part.LineSegment(V(-36.3, 49.3, 0), V(-41.3, 49.3, 0)),
    Part.LineSegment(V(-41.3, 49.3, 0), V(-41.3, 46.8, 0)),
    Part.LineSegment(V(-41.3, 46.8, 0), V(-36.3, 46.8, 0)),
    Part.LineSegment(V(-36.3, 46.8, 0), V(-36.3, 31, 0)),
    Part.LineSegment(V(-36.3, 31, 0), V(-13.6, 31, 0)),
    Part.LineSegment(V(-13.6, 31, 0), V(-13.6, 46.8, 0)),
    Part.LineSegment(V(-13.6, 46.8, 0), V(-8.6, 46.8, 0)),
    Part.LineSegment(V(-8.6, 46.8, 0), V(-8.6, 49.3, 0)),
    Part.LineSegment(V(-8.6, 49.3, 0), V(-13.6, 49.3, 0)),
    Part.LineSegment(V(-13.6, 49.3, 0), V(-13.6, 53.3, 0)),
], False)
sketch10.addConstraint([
    Sketcher.Constraint("Coincident", 0, 2, 1, 1),
    Sketcher.Constraint("Coincident", 1, 2, 2, 1),
    Sketcher.Constraint("Coincident", 2, 2, 3, 1),
    Sketcher.Constraint("Coincident", 3, 2, 4, 1),
    Sketcher.Constraint("Coincident", 4, 2, 5, 1),
    Sketcher.Constraint("Coincident", 5, 2, 6, 1),
    Sketcher.Constraint("Coincident", 6, 2, 7, 1),
    Sketcher.Constraint("Coincident", 7, 2, 8, 1),
    Sketcher.Constraint("Coincident", 8, 2, 9, 1),
    Sketcher.Constraint("Coincident", 9, 2, 10, 1),
    Sketcher.Constraint("Coincident", 10, 2, 11, 1),
    Sketcher.Constraint("Coincident", 11, 2, 0, 1),
    Sketcher.Constraint("Horizontal", 0),
    Sketcher.Constraint("Vertical", 1),
    Sketcher.Constraint("Horizontal", 2),
    Sketcher.Constraint("Vertical", 3),
    Sketcher.Constraint("Horizontal", 4),
    Sketcher.Constraint("Vertical", 5),
    Sketcher.Constraint("Horizontal", 6),
    Sketcher.Constraint("Vertical", 7),
    Sketcher.Constraint("Horizontal", 8),
    Sketcher.Constraint("Vertical", 9),
    Sketcher.Constraint("Horizontal", 10),
    Sketcher.Constraint("Vertical", 11),
    Sketcher.Constraint("Horizontal", 4, 2, 7, 2),
    Sketcher.Constraint("Horizontal", 2, 2, 9, 2),
    Sketcher.Constraint("Vertical", 1, 2, 4, 2),
    Sketcher.Constraint("Vertical", 7, 2, 10, 2),
    Sketcher.Constraint("Equal", 4, 8),
    Sketcher.Constraint("DistanceX", 2, 2, 2, 1, Q("5 mm")),
    Sketcher.Constraint("DistanceY", 1, 2, 1, 1, Q("4 mm")),
    Sketcher.Constraint("DistanceY", 3, 2, 3, 1, Q("2.5 mm")),
    Sketcher.Constraint("DistanceX", 0, 2, 0, 1, Q("22.65 mm")),
    Sketcher.Constraint("DistanceY", 5, 2, 5, 1, Q("15.75 mm")),
    Sketcher.Constraint("DistanceX", 0, 2, -1, 1, Q("36.2907 mm")),
    Sketcher.Constraint("DistanceY", -1, 1, 0, 2, Q("53.285544 mm")),
])
sketch10.setExpression("Constraints[29]", "Params.sketch10_width")
sketch10.setExpression("Constraints[30]", "Params.sketch10_height")
sketch10.setExpression("Constraints[31]", "Params.sketch10_height2")
sketch10.setExpression("Constraints[32]", "Params.sketch10_width2")
sketch10.setExpression("Constraints[33]", "Params.sketch10_height3")
pocket5 = doc.addObject("PartDesign::Pocket", "Pocket004")
body.addObject(pocket5)
pocket5.Profile = sketch10
pocket5.setExpression("Length", "Params.pocket5_length")

sketch11 = doc.addObject("Sketcher::SketchObject", "Sketch010")
body.addObject(sketch11)
sketch11.AttachmentSupport = (doc.XY_Plane, [""])
sketch11.MapMode = "FlatFace"
sketch11.AttachmentOffset = App.Placement(V(0, 0, 2.4), App.Rotation())
sketch11.addGeometry([
    Part.LineSegment(V(-23.6, 57.8, 0), V(-23.6, 53.3, 0)),
    Part.LineSegment(V(-23.6, 53.3, 0), V(-13.6, 53.3, 0)),
    Part.LineSegment(V(-13.6, 53.3, 0), V(-13.6, 57.8, 0)),
    Part.LineSegment(V(-13.6, 57.8, 0), V(-23.6, 57.8, 0)),
], False)
sketch11.addConstraint([
    Sketcher.Constraint("Coincident", 0, 2, 1, 1),
    Sketcher.Constraint("Coincident", 1, 2, 2, 1),
    Sketcher.Constraint("Coincident", 2, 2, 3, 1),
    Sketcher.Constraint("Coincident", 3, 2, 0, 1),
    Sketcher.Constraint("Vertical", 0),
    Sketcher.Constraint("Horizontal", 1),
    Sketcher.Constraint("Vertical", 2),
    Sketcher.Constraint("Horizontal", 3),
    Sketcher.Constraint("DistanceX", 1, 1, 1, 2, Q("10 mm")),
    Sketcher.Constraint("DistanceY", 0, 2, 0, 1, Q("4.5 mm")),
    Sketcher.Constraint("DistanceX", 0, 2, -1, 1, Q("23.6407 mm")),
    Sketcher.Constraint("DistanceY", -1, 1, 0, 2, Q("53.285544 mm")),
])
sketch11.setExpression("Constraints[8]", "Params.sketch11_width")
sketch11.setExpression("Constraints[9]", "Params.sketch11_height")
pocket6 = doc.addObject("PartDesign::Pocket", "Pocket005")
body.addObject(pocket6)
pocket6.Profile = sketch11
pocket6.Type = "TwoLengths"
pocket6.setExpression("Length", "Params.pocket6_length")
pocket6.setExpression("Length2", "Params.pocket6_length2")
pocket6.Reversed = True

sketch12 = doc.addObject("Sketcher::SketchObject", "Sketch011")
body.addObject(sketch12)
sketch12.AttachmentSupport = (doc.XY_Plane, [""])
sketch12.MapMode = "FlatFace"
sketch12.AttachmentOffset = App.Placement(V(0, 0, 4), App.Rotation())
sketch12.addGeometry([
    Part.LineSegment(V(-40, 28, 0), V(-40, 7, 0)),
    Part.LineSegment(V(-40, 7, 0), V(-12, 7, 0)),
    Part.LineSegment(V(-12, 7, 0), V(-12, 28, 0)),
    Part.LineSegment(V(-12, 28, 0), V(-40, 28, 0)),
    Part.LineSegment(V(-16, 11, 0), V(-36, 11, 0)),
    Part.LineSegment(V(-36, 11, 0), V(-36, 24, 0)),
    Part.LineSegment(V(-36, 24, 0), V(-16, 24, 0)),
    Part.LineSegment(V(-16, 24, 0), V(-16, 11, 0)),
], False)
sketch12.addConstraint([
    Sketcher.Constraint("Coincident", 0, 2, 1, 1),
    Sketcher.Constraint("Coincident", 1, 2, 2, 1),
    Sketcher.Constraint("Coincident", 2, 2, 3, 1),
    Sketcher.Constraint("Coincident", 3, 2, 0, 1),
    Sketcher.Constraint("Coincident", 4, 2, 5, 1),
    Sketcher.Constraint("Coincident", 5, 2, 6, 1),
    Sketcher.Constraint("Coincident", 6, 2, 7, 1),
    Sketcher.Constraint("Coincident", 7, 2, 4, 1),
    Sketcher.Constraint("Vertical", 0),
    Sketcher.Constraint("Horizontal", 1),
    Sketcher.Constraint("Vertical", 2),
    Sketcher.Constraint("Horizontal", 3),
    Sketcher.Constraint("Horizontal", 4),
    Sketcher.Constraint("Vertical", 5),
    Sketcher.Constraint("Horizontal", 6),
    Sketcher.Constraint("Vertical", 7),
    Sketcher.Constraint("DistanceX", 1, 1, 1, 2, Q("27.4 mm")),
    Sketcher.Constraint("DistanceX", 4, 2, 4, 1, Q("20.6 mm")),
    Sketcher.Constraint("DistanceY", 0, 2, 0, 1, Q("20.4 mm")),
    Sketcher.Constraint("DistanceY", 5, 1, 5, 2, Q("13.6 mm")),
    Sketcher.Constraint("DistanceY", 4, 2, 3, 2, Q("17 mm")),
    Sketcher.Constraint("DistanceX", 4, 2, 1, 2, Q("24 mm")),
    Sketcher.Constraint("DistanceX", 0, 2, -1, 1, Q("39.8407 mm")),
    Sketcher.Constraint("DistanceY", -1, 1, 0, 2, Q("7.435544 mm")),
])
sketch12.setExpression("Constraints[16]", "Params.sketch12_width")
sketch12.setExpression("Constraints[17]", "Params.sketch12_width2")
sketch12.setExpression("Constraints[18]", "Params.sketch12_height")
sketch12.setExpression("Constraints[19]", "Params.sketch12_height2")
pad6 = doc.addObject("PartDesign::Pad", "Pad005")
body.addObject(pad6)
pad6.Profile = sketch12
pad6.setExpression("Length", "Params.pad6_length")

sketch13 = doc.addObject("Sketcher::SketchObject", "Sketch012")
body.addObject(sketch13)
sketch13.AttachmentSupport = (doc.XY_Plane, [""])
sketch13.MapMode = "FlatFace"
sketch13.AttachmentOffset = App.Placement(V(0, 0, 2.4), App.Rotation())
sketch13.addGeometry([
    Part.LineSegment(V(-39, 27, 0), V(-39, 9, 0)),
    Part.LineSegment(V(-39, 9, 0), V(-14, 9, 0)),
    Part.LineSegment(V(-14, 9, 0), V(-14, 27, 0)),
    Part.LineSegment(V(-14, 27, 0), V(-39, 27, 0)),
], False)
sketch13.addConstraint([
    Sketcher.Constraint("Coincident", 0, 2, 1, 1),
    Sketcher.Constraint("Coincident", 1, 2, 2, 1),
    Sketcher.Constraint("Coincident", 2, 2, 3, 1),
    Sketcher.Constraint("Coincident", 3, 2, 0, 1),
    Sketcher.Constraint("Vertical", 0),
    Sketcher.Constraint("Horizontal", 1),
    Sketcher.Constraint("Vertical", 2),
    Sketcher.Constraint("Horizontal", 3),
    Sketcher.Constraint("DistanceX", 1, 1, 1, 2, Q("25 mm")),
    Sketcher.Constraint("DistanceY", 0, 2, 0, 1, Q("18 mm")),
    Sketcher.Constraint("DistanceX", 0, 2, -1, 1, Q("38.6407 mm")),
    Sketcher.Constraint("DistanceY", -1, 1, 0, 2, Q("8.635544 mm")),
])
sketch13.setExpression("Constraints[8]", "Params.sketch13_width")
sketch13.setExpression("Constraints[9]", "Params.sketch13_height")
pocket7 = doc.addObject("PartDesign::Pocket", "Pocket006")
body.addObject(pocket7)
pocket7.Profile = sketch13
pocket7.setExpression("Length", "Params.pocket7_length")

sketch14 = doc.addObject("Sketcher::SketchObject", "Sketch013")
body.addObject(sketch14)
sketch14.AttachmentSupport = (doc.XY_Plane, [""])
sketch14.MapMode = "FlatFace"
sketch14.addGeometry([
    Part.LineSegment(V(-15.8, 27.8, 0), V(-15.8, 19.8, 0)),
    Part.LineSegment(V(-15.8, 19.8, 0), V(-12.4, 19.8, 0)),
    Part.LineSegment(V(-12.4, 19.8, 0), V(-12.4, 27.8, 0)),
    Part.LineSegment(V(-12.4, 27.8, 0), V(-15.8, 27.8, 0)),
], False)
sketch14.addConstraint([
    Sketcher.Constraint("Coincident", 0, 2, 1, 1),
    Sketcher.Constraint("Coincident", 1, 2, 2, 1),
    Sketcher.Constraint("Coincident", 2, 2, 3, 1),
    Sketcher.Constraint("Coincident", 3, 2, 0, 1),
    Sketcher.Constraint("Vertical", 0),
    Sketcher.Constraint("Horizontal", 1),
    Sketcher.Constraint("Vertical", 2),
    Sketcher.Constraint("Horizontal", 3),
    Sketcher.Constraint("DistanceY", 0, 2, 0, 1, Q("8 mm")),
    Sketcher.Constraint("DistanceX", 1, 1, 1, 2, Q("3.4 mm")),
    Sketcher.Constraint("DistanceX", 0, 2, -1, 1, Q("15.8407 mm")),
    Sketcher.Constraint("DistanceY", -1, 1, 0, 2, Q("19.835544 mm")),
])
sketch14.setExpression("Constraints[8]", "Params.sketch14_height")
sketch14.setExpression("Constraints[9]", "Params.sketch14_width")
pocket8 = doc.addObject("PartDesign::Pocket", "Pocket007")
body.addObject(pocket8)
pocket8.Profile = sketch14
pocket8.setExpression("Length", "Params.pocket8_length")
pocket8.Reversed = True
doc.recompute()

fillet = doc.addObject("PartDesign::Fillet", "Fillet")
body.addObject(fillet)
fillet.Base = (pocket8, edges_at(pocket8, [(-62.941, 33.189, 17.4), (-47.941, 33.189, 17.4)]))
fillet.setExpression("Radius", "Params.fillet_radius")

doc.recompute()
